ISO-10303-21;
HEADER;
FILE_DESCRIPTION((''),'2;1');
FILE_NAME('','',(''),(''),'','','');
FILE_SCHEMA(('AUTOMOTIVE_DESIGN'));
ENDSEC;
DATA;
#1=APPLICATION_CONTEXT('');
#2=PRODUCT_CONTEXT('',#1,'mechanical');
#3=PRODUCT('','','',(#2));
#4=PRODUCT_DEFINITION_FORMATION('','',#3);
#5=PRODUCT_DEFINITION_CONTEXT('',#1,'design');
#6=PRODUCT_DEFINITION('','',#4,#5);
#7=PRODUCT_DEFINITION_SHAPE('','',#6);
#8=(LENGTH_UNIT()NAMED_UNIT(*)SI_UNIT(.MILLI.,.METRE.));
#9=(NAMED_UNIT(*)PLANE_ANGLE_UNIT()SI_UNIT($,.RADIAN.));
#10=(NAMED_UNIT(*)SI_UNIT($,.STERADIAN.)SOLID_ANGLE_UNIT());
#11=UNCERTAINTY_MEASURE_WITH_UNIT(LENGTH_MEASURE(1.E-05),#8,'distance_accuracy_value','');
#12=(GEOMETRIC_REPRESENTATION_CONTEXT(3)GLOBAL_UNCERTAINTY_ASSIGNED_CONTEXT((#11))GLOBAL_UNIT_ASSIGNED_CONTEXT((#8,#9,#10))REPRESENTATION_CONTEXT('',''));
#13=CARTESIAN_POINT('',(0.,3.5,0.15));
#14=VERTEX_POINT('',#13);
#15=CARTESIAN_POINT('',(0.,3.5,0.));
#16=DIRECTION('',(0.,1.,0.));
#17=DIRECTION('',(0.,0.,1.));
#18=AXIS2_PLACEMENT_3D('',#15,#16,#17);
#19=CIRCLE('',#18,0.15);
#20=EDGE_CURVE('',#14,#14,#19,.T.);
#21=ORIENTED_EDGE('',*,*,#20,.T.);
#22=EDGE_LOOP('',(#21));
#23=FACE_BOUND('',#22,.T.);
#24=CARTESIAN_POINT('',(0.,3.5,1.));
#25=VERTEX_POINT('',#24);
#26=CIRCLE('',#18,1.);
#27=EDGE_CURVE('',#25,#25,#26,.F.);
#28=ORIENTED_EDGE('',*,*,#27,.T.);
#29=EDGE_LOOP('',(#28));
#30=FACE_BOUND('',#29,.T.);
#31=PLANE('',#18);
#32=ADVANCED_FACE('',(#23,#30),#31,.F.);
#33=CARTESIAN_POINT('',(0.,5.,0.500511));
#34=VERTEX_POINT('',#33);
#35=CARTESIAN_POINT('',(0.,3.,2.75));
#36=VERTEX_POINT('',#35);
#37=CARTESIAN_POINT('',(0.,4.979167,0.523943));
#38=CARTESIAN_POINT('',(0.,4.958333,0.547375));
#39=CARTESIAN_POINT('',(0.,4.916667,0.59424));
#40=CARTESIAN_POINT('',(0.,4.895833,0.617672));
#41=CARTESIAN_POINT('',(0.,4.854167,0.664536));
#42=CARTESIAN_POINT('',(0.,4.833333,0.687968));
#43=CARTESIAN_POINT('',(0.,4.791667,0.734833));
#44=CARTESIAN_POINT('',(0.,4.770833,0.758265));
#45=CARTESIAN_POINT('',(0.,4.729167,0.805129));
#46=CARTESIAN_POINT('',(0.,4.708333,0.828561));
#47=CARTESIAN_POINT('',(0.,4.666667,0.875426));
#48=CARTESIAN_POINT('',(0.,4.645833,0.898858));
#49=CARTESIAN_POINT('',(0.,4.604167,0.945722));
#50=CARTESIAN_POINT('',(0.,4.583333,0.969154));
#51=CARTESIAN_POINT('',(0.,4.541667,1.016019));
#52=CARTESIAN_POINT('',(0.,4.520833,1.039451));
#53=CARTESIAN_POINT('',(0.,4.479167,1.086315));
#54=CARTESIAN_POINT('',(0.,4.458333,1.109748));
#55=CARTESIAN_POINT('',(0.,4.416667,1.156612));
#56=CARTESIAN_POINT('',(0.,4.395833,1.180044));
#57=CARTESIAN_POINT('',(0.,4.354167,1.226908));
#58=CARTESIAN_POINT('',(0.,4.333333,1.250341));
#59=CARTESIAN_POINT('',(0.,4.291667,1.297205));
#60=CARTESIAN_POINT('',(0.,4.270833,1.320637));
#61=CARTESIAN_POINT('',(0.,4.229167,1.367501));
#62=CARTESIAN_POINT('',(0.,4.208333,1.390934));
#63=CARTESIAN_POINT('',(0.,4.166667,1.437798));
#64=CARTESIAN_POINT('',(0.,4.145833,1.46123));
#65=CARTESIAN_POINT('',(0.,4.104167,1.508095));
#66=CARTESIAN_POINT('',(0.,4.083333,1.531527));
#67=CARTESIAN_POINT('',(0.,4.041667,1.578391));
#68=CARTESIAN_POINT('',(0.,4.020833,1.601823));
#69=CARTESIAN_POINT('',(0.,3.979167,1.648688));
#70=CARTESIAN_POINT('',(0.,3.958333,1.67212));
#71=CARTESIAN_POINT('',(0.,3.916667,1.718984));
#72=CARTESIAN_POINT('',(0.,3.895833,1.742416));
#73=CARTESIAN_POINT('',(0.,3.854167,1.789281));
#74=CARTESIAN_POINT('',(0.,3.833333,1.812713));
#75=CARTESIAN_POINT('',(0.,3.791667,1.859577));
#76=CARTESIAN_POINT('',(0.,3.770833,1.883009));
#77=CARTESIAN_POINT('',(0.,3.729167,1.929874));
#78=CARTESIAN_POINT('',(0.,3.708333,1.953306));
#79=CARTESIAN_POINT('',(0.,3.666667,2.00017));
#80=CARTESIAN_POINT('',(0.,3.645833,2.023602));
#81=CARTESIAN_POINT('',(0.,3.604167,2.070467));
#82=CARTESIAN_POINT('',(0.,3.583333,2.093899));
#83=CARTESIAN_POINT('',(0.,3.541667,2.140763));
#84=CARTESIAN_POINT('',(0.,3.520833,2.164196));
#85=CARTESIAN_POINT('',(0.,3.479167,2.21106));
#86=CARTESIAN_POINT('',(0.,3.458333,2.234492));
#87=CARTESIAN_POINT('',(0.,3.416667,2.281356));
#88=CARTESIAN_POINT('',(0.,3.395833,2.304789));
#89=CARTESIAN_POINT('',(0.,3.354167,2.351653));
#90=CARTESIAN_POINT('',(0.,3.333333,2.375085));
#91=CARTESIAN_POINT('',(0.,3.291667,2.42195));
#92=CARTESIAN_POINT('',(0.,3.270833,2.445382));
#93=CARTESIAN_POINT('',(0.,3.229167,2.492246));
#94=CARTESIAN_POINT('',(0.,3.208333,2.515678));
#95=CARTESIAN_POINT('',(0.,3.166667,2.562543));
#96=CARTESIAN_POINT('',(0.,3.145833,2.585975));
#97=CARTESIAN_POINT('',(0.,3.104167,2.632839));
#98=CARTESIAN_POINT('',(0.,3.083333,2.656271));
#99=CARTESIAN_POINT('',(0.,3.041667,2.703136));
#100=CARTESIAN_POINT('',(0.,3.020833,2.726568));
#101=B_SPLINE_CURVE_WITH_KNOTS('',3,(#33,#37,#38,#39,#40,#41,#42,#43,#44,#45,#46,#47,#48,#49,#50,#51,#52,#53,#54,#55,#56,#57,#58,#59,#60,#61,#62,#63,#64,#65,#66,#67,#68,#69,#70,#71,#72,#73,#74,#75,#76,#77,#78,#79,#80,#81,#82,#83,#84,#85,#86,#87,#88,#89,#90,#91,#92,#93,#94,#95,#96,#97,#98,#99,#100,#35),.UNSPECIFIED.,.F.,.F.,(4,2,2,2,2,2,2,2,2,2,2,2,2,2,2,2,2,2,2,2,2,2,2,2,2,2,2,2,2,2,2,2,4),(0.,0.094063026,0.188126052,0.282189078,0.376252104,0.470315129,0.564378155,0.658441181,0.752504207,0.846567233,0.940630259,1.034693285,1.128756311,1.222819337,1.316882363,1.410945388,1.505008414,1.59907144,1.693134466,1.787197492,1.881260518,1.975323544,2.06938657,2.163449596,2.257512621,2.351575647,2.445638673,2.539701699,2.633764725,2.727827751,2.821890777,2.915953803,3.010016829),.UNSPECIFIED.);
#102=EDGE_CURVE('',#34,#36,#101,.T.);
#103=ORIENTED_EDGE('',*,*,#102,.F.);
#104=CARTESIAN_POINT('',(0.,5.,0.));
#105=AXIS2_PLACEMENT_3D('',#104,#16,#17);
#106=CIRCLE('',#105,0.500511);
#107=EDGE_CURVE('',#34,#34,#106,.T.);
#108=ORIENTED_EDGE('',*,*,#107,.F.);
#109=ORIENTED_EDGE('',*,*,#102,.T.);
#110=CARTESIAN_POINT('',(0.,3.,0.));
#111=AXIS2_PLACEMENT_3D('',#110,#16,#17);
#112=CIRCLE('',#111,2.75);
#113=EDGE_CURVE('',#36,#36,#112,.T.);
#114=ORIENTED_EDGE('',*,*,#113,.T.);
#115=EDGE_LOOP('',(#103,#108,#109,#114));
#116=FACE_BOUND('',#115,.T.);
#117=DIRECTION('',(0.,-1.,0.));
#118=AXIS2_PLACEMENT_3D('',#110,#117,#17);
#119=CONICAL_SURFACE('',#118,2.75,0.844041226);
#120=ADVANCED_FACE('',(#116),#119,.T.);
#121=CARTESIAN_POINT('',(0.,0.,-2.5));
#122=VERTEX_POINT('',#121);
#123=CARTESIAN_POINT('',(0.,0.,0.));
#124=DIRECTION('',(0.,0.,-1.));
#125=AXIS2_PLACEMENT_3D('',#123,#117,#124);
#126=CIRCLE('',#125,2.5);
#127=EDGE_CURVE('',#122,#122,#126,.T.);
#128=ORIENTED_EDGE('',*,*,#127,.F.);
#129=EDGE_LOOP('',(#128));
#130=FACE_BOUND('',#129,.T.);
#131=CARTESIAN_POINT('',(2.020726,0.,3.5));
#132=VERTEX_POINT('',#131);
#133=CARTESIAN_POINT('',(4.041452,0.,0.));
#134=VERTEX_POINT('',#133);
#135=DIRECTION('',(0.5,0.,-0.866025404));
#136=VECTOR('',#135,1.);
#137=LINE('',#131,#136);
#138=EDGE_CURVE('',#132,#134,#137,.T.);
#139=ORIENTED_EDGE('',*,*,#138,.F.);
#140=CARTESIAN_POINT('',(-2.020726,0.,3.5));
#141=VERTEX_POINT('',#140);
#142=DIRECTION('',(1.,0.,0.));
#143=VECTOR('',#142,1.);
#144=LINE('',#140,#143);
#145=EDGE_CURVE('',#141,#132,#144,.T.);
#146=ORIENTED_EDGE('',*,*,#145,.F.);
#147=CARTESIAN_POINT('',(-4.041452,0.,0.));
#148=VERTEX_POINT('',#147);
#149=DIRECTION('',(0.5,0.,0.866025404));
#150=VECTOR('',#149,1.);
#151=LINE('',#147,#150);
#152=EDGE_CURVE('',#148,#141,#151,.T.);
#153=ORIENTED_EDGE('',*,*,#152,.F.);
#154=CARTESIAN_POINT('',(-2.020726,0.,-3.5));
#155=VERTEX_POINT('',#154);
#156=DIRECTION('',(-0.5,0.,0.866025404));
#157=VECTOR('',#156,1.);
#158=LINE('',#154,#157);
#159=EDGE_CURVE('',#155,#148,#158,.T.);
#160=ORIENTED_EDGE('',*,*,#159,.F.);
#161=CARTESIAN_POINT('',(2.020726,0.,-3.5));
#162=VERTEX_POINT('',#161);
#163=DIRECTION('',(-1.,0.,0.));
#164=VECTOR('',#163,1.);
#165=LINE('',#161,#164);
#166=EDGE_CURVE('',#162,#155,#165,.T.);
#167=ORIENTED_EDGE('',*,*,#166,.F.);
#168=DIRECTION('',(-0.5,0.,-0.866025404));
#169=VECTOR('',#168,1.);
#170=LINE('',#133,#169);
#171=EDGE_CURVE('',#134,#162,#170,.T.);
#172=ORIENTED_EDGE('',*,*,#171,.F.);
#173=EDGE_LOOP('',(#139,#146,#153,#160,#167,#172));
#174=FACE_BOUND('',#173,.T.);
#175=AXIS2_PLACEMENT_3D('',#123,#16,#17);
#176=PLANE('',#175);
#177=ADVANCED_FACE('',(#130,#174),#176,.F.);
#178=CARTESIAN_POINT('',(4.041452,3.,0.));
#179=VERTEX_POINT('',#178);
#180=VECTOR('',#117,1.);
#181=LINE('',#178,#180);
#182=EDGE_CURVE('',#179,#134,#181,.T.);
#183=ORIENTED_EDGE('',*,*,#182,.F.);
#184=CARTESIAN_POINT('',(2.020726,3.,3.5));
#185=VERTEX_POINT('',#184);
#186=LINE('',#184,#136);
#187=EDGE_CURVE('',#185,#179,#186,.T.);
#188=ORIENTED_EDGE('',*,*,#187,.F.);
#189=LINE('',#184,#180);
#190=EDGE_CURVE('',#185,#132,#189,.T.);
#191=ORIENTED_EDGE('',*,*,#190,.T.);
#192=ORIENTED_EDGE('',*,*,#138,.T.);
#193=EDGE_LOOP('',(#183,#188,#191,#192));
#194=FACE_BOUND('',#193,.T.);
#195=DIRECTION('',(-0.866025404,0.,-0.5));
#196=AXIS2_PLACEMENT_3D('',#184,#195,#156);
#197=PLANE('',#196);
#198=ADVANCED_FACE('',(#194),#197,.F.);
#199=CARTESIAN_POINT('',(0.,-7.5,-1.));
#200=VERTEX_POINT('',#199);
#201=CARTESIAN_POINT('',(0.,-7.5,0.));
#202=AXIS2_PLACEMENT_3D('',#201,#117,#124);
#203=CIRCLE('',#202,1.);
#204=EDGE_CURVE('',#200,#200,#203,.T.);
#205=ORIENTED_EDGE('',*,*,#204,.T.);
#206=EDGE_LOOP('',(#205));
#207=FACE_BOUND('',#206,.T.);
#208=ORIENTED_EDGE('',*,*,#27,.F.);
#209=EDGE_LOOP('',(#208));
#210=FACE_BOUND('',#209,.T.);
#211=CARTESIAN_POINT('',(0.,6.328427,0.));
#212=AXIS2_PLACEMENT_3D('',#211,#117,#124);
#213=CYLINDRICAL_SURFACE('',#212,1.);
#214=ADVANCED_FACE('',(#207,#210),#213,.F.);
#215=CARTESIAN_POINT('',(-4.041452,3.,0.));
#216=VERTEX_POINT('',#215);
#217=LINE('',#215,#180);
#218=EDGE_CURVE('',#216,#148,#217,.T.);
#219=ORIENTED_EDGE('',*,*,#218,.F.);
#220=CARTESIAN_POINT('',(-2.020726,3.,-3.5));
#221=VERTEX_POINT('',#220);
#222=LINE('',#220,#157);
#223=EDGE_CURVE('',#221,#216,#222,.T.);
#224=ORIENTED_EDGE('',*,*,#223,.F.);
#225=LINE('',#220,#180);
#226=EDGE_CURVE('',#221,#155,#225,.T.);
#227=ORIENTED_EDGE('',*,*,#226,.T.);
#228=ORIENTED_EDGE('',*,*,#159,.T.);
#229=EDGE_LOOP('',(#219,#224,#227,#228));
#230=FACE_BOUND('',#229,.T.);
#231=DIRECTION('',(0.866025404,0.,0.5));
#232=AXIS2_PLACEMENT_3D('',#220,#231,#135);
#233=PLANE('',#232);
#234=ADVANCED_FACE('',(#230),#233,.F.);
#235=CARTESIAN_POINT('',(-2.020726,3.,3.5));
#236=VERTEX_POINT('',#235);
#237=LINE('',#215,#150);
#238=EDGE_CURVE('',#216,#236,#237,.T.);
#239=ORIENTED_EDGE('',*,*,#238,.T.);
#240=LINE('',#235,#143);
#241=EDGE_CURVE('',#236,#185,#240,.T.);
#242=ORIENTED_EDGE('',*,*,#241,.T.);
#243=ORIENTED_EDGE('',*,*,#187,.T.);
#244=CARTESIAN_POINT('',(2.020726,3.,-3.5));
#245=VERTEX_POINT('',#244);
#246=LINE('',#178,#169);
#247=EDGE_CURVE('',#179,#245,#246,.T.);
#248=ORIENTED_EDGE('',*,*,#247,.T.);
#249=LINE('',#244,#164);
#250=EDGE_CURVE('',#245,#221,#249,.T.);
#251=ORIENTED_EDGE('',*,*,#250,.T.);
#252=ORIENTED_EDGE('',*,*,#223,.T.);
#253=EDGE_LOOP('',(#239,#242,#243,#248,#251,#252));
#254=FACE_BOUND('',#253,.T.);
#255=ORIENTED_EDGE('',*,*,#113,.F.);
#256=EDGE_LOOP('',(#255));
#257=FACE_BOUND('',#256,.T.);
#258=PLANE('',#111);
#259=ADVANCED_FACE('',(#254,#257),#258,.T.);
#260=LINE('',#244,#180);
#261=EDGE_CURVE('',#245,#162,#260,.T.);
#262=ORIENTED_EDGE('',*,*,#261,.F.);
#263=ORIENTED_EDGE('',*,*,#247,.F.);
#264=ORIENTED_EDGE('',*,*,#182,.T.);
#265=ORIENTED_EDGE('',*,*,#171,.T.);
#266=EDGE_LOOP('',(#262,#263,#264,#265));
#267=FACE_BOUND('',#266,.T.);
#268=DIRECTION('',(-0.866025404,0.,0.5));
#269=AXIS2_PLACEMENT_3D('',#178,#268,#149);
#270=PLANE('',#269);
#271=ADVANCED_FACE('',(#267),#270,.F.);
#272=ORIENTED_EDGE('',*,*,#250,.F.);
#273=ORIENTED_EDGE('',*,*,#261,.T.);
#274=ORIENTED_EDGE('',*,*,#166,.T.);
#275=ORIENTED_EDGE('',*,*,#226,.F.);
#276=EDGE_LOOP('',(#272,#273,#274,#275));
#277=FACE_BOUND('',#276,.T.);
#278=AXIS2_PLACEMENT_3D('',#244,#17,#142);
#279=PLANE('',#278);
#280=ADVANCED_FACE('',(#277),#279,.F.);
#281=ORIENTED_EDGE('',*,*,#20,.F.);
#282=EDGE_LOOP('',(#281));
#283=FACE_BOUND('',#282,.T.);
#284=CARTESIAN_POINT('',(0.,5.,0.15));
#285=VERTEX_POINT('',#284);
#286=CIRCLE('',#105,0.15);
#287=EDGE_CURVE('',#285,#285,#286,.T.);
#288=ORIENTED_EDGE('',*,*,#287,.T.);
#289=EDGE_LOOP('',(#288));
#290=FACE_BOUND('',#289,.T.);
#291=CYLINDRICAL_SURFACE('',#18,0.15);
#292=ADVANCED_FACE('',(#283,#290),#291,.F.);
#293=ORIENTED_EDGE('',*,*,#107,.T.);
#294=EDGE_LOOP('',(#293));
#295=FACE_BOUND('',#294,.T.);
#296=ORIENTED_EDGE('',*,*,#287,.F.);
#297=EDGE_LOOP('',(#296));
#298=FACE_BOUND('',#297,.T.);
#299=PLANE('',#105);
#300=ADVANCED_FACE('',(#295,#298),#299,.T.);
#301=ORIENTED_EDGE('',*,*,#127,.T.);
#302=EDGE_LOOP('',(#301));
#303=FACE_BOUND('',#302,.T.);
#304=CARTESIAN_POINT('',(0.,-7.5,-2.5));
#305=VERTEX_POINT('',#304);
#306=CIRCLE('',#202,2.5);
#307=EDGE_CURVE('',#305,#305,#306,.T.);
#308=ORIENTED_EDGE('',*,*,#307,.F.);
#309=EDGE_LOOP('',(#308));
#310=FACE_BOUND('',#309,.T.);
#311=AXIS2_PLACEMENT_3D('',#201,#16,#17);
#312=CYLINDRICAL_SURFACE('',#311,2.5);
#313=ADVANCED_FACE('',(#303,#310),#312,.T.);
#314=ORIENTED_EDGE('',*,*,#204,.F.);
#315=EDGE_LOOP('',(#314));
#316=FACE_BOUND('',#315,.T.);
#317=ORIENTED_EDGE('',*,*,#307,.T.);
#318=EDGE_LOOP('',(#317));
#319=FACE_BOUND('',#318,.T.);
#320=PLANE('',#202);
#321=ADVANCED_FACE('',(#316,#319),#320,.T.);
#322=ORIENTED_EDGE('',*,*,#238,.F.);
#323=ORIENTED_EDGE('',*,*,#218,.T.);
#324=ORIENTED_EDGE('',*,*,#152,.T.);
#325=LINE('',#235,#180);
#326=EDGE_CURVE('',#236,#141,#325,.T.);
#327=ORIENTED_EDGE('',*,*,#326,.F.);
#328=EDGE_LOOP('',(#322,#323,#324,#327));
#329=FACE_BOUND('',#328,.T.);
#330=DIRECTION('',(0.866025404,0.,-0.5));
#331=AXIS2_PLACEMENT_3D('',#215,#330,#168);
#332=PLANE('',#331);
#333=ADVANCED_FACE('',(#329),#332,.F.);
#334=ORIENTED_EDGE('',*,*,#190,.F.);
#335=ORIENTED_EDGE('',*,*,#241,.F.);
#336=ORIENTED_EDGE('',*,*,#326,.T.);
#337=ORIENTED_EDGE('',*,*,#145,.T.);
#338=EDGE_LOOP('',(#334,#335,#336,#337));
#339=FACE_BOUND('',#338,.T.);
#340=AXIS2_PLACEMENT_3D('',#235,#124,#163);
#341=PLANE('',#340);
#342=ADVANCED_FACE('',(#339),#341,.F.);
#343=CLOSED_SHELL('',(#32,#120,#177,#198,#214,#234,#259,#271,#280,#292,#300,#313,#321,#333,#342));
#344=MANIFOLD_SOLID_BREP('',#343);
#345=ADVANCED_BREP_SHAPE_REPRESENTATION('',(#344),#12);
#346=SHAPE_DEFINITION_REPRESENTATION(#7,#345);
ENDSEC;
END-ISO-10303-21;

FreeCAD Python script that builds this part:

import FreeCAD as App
import Part
import Sketcher
Q = App.Units.Quantity


def add_polygon(sketch, points):
    """Adds a closed chain of lines whose ends are joined by coincident constraints."""
    first, n = sketch.GeometryCount, len(points)
    for a, b in zip(points, points[1:] + points[:1]):
        sketch.addGeometry(Part.LineSegment(App.Vector(*a, 0), App.Vector(*b, 0)), False)
    for i in range(n):
        sketch.addConstraint(Sketcher.Constraint("Coincident", first + i, 2, first + (i + 1) % n, 1))

doc = App.newDocument("Part")
body = doc.addObject("PartDesign::Body", "Body")

sketch1 = body.newObject("Sketcher::SketchObject", "Sketch")
sketch1.AttachmentSupport = (doc.getObject("XZ_Plane"), [""])
sketch1.MapMode = "FlatFace"
add_polygon(sketch1, [(4, 0), (2, -3.5), (-2, -3.5), (-4, 0), (-2, 3.5), (2, 3.5)])
sketch1.addConstraint(Sketcher.Constraint("Horizontal", 1))
sketch1.addConstraint(Sketcher.Constraint("Horizontal", 4))
sketch1.addConstraint(Sketcher.Constraint("Symmetric", 0, 2, 3, 2, -1, 1))
sketch1.addConstraint(Sketcher.Constraint("Symmetric", 2, 2, 5, 2, -1, 1))
sketch1.addConstraint(Sketcher.Constraint("PointOnObject", 2, 2, -1))
sketch1.addConstraint(Sketcher.Constraint("Parallel", 2, 5))
sketch1.addConstraint(Sketcher.Constraint("Vertical", 1, 2, 3, 2))
sketch1.addConstraint(Sketcher.Constraint("Angle", 0, Q("-120 deg")))
sketch1.addConstraint(Sketcher.Constraint("DistanceY", 1, 2, 3, 2, Q("7 mm")))
sketch1.addConstraint(Sketcher.Constraint("DistanceX", 1, 2, 1, 1, Q("4.041452 mm")))
pad1 = body.newObject("PartDesign::Pad", "Pad")
pad1.Profile = sketch1
pad1.Length = 3
pad1.Reversed = True

sketch2 = body.newObject("Sketcher::SketchObject", "Sketch001")
sketch2.AttachmentSupport = (doc.getObject("XZ_Plane"), [""])
sketch2.MapMode = "FlatFace"
sketch2.AttachmentOffset = App.Placement(App.Vector(0, 0, -3), App.Rotation())
sketch2.addGeometry(Part.Circle(App.Vector(0, 0, 0), App.Vector(0, 0, 1), 2.8), False)
sketch2.addConstraint(Sketcher.Constraint("Coincident", 0, 3, -1, 1))
sketch2.addConstraint(Sketcher.Constraint("Diameter", 0, Q("5.5 mm")))
pad2 = body.newObject("PartDesign::Pad", "Pad001")
pad2.Profile = sketch2
pad2.Length = 2
pad2.Reversed = True
pad2.TaperAngle = -48.36

sketch3 = body.newObject("Sketcher::SketchObject", "Sketch002")
sketch3.AttachmentSupport = (doc.getObject("XZ_Plane"), [""])
sketch3.MapMode = "FlatFace"
sketch3.AttachmentOffset = App.Placement(App.Vector(0, 0, -5), App.Rotation())
sketch3.addGeometry(Part.Circle(App.Vector(0, 0, 0), App.Vector(0, 0, 1), 0.15), False)
sketch3.addConstraint(Sketcher.Constraint("Coincident", 0, 3, -1, 1))
sketch3.addConstraint(Sketcher.Constraint("Diameter", 0, Q("0.3 mm")))
pocket1 = body.newObject("PartDesign::Pocket", "Pocket")
pocket1.Profile = sketch3
pocket1.Length = 1.5
pocket1.Reversed = True

sketch4 = body.newObject("Sketcher::SketchObject", "Sketch003")
sketch4.AttachmentSupport = (doc.getObject("XZ_Plane"), [""])
sketch4.MapMode = "FlatFace"
sketch4.addGeometry(Part.Circle(App.Vector(0, 0, 0), App.Vector(0, 0, 1), 2.5), False)
sketch4.addConstraint(Sketcher.Constraint("Coincident", 0, 3, -1, 1))
sketch4.addConstraint(Sketcher.Constraint("Diameter", 0, Q("5 mm")))
pad3 = body.newObject("PartDesign::Pad", "Pad002")
pad3.Profile = sketch4
pad3.Length = 7.5

sketch5 = body.newObject("Sketcher::SketchObject", "Sketch004")
sketch5.AttachmentSupport = (doc.getObject("XZ_Plane"), [""])
sketch5.MapMode = "FlatFace"
sketch5.AttachmentOffset = App.Placement(App.Vector(0, 0, 7.5), App.Rotation())
sketch5.addGeometry(Part.Circle(App.Vector(0, 0, 0), App.Vector(0, 0, 1), 1), False)
sketch5.addConstraint(Sketcher.Constraint("Coincident", 0, 3, -1, 1))
sketch5.addConstraint(Sketcher.Constraint("Diameter", 0, Q("2 mm")))
pocket2 = body.newObject("PartDesign::Pocket", "Pocket001")
pocket2.Profile = sketch5
pocket2.Length = 11

doc.recompute()
